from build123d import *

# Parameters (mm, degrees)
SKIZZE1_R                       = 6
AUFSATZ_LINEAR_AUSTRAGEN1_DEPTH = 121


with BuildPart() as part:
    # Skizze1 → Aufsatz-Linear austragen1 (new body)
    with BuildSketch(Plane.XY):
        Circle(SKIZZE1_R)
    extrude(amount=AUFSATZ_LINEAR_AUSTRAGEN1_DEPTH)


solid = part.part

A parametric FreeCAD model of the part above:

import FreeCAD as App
import Part
import Sketcher
Q = App.Units.Quantity

doc = App.newDocument("Part")
body = doc.addObject("PartDesign::Body", "Body")

# Sketch on XY plane
sketch1 = body.newObject("Sketcher::SketchObject", "Sketch")
sketch1.AttachmentSupport = (doc.getObject("XY_Plane"), [""])
sketch1.MapMode = "FlatFace"
sketch1.addGeometry(Part.Circle(App.Vector(0, 0, 0), App.Vector(0, 0, 1), 6), False)
sketch1.addConstraint([
    Sketcher.Constraint("Coincident", 0, 3, -1, 1),
    Sketcher.Constraint("Diameter", 0, Q("12 mm")),
])
pad1 = body.newObject("PartDesign::Pad", "Pad")
pad1.Profile = sketch1
pad1.Length = 121

doc.recompute()
